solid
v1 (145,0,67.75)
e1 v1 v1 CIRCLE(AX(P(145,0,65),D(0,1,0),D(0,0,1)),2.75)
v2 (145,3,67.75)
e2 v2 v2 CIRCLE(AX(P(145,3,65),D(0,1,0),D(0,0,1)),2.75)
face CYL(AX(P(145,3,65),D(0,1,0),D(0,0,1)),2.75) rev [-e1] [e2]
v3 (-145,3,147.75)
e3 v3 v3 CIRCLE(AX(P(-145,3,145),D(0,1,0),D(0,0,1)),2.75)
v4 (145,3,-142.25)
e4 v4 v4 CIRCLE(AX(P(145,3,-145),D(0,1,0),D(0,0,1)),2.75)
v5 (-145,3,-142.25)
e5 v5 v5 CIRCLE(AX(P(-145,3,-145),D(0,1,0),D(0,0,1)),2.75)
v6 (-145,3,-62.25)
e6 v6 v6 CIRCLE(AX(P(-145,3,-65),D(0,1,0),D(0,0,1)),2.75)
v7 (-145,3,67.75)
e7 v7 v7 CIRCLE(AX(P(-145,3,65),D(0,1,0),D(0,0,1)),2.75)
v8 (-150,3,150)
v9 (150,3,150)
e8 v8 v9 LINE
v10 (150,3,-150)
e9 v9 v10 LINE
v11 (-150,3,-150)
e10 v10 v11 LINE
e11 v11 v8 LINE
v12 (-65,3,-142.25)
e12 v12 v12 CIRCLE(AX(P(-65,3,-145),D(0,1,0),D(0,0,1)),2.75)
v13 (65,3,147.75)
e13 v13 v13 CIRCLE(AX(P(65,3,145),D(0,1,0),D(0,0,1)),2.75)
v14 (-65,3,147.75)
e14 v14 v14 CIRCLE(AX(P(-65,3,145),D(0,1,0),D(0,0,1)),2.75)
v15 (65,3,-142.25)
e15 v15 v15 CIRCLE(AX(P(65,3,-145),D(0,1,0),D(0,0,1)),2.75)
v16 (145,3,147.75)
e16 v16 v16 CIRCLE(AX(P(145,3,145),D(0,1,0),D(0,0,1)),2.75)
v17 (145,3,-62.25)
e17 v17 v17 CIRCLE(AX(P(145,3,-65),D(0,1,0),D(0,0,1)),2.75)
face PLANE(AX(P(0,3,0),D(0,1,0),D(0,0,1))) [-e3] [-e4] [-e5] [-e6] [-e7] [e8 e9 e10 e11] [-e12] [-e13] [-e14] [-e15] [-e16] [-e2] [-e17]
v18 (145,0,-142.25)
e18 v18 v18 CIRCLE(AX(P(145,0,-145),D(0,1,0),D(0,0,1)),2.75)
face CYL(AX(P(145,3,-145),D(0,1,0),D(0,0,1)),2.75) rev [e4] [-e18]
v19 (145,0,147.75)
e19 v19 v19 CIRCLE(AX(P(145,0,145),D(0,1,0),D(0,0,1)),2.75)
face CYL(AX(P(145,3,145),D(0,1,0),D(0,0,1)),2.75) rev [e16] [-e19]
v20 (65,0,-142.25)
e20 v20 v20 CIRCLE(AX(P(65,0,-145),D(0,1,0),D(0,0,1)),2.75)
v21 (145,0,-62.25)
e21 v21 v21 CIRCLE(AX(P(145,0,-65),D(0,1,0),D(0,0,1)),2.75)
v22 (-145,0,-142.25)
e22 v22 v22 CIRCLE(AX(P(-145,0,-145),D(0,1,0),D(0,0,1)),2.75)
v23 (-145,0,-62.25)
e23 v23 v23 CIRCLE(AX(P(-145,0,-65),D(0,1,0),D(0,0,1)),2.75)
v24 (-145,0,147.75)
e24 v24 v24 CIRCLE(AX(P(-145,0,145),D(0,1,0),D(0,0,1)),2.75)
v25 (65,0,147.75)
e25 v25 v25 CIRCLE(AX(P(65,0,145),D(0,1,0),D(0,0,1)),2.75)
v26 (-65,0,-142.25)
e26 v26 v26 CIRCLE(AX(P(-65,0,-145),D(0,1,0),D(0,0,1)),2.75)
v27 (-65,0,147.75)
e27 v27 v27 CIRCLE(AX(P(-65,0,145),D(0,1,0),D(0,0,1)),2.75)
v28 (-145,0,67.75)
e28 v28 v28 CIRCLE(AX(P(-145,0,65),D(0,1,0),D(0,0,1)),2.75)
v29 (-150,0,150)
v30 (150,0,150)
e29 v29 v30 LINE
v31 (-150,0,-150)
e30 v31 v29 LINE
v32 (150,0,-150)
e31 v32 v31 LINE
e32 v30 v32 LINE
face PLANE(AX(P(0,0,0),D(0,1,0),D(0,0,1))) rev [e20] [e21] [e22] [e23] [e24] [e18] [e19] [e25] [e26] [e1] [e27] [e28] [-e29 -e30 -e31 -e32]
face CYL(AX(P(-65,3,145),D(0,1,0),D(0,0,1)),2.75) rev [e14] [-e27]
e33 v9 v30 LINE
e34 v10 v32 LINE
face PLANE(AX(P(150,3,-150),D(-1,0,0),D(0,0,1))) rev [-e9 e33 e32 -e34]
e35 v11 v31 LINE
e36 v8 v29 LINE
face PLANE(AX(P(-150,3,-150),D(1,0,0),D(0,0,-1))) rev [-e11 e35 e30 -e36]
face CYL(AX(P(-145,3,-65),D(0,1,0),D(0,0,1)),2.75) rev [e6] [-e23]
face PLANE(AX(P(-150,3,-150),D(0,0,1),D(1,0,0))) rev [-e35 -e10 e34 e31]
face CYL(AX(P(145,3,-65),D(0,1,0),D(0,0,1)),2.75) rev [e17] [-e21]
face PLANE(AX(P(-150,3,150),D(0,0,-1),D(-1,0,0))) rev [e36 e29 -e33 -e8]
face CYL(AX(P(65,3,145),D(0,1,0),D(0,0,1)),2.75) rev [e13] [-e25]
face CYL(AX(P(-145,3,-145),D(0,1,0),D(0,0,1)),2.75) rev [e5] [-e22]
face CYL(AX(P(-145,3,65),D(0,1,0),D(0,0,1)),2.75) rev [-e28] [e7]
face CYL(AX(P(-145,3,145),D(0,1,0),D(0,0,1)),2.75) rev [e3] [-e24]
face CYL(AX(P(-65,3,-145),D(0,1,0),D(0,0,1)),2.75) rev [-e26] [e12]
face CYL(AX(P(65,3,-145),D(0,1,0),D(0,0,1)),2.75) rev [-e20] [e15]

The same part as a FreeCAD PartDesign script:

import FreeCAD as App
import Part
import Sketcher
from FreeCAD import Vector
Q = App.Units.Quantity


def add_polygon(sketch, points):
    """Adds a closed chain of lines whose ends are joined by coincident constraints."""
    first, n = sketch.GeometryCount, len(points)
    for a, b in zip(points, points[1:] + points[:1]):
        sketch.addGeometry(Part.LineSegment(App.Vector(*a, 0), App.Vector(*b, 0)), False)
    for i in range(n):
        sketch.addConstraint(Sketcher.Constraint("Coincident", first + i, 2, first + (i + 1) % n, 1))

doc = App.newDocument("Part")
body = doc.addObject("PartDesign::Body", "Body")

# Sketch on XZ plane
sketch1 = body.newObject("Sketcher::SketchObject", "Sketch")
sketch1.AttachmentSupport = (doc.getObject("XZ_Plane"), [""])
sketch1.MapMode = "FlatFace"
add_polygon(sketch1, [(-150, -150), (-150, 150), (150, 150), (150, -150)])  # lines 0-3
sketch1.addConstraint([
    Sketcher.Constraint("Vertical", 0),
    Sketcher.Constraint("Horizontal", 1),
    Sketcher.Constraint("Vertical", 2),
    Sketcher.Constraint("Horizontal", 3),
    Sketcher.Constraint("Symmetric", 0, 2, 2, 2, -1, 1),
    Sketcher.Constraint("Equal", 3, 0),
    Sketcher.Constraint("DistanceX", 1, 1, 1, 2, Q("300 mm")),
])
pad1 = body.newObject("PartDesign::Pad", "Pad")
pad1.Profile = sketch1
pad1.Length = 3
pad1.Reversed = True

# Sketch on XZ plane
sketch2 = body.newObject("Sketcher::SketchObject", "Sketch001")
sketch2.AttachmentSupport = (doc.getObject("XZ_Plane"), [""])
sketch2.MapMode = "FlatFace"
sketch2.AttachmentOffset = App.Placement(Vector(0, 0, -3), App.Rotation())
sketch2.addGeometry([
    Part.Circle(Vector(-145, -145, 0), Vector(0, 0, 1), 2.75),  # 0
    Part.Circle(Vector(145, 145, 0), Vector(0, 0, 1), 2.75),  # 1
    Part.Circle(Vector(-145, 145, 0), Vector(0, 0, 1), 2.75),  # 2
    Part.Circle(Vector(145, -145, 0), Vector(0, 0, 1), 2.75),  # 3
    Part.Circle(Vector(-65, -145, 0), Vector(0, 0, 1), 2.75),  # 4
    Part.Circle(Vector(65, -145, 0), Vector(0, 0, 1), 2.75),  # 5
    Part.Circle(Vector(65, 145, 0), Vector(0, 0, 1), 2.75),  # 6
    Part.Circle(Vector(-65, 145, 0), Vector(0, 0, 1), 2.75),  # 7
    Part.Circle(Vector(-145, -65, 0), Vector(0, 0, 1), 2.75),  # 8
    Part.Circle(Vector(-145, 65, 0), Vector(0, 0, 1), 2.75),  # 9
    Part.Circle(Vector(145, -65, 0), Vector(0, 0, 1), 2.75),  # 10
    Part.Circle(Vector(145, 65, 0), Vector(0, 0, 1), 2.75),  # 11
], False)
sketch2.addConstraint([
    Sketcher.Constraint("Equal", 0, 1),
    Sketcher.Constraint("Equal", 1, 2),
    Sketcher.Constraint("Equal", 2, 3),
    Sketcher.Constraint("Equal", 3, 4),
    Sketcher.Constraint("Equal", 4, 5),
    Sketcher.Constraint("Equal", 5, 6),
    Sketcher.Constraint("Equal", 6, 7),
    Sketcher.Constraint("Equal", 7, 8),
    Sketcher.Constraint("Equal", 8, 9),
    Sketcher.Constraint("Equal", 9, 10),
    Sketcher.Constraint("Equal", 10, 11),
    Sketcher.Constraint("Symmetric", 0, 3, 1, 3, -1, 1),
    Sketcher.Constraint("Symmetric", 2, 3, 3, 3, -1, 1),
    Sketcher.Constraint("Symmetric", 4, 3, 6, 3, -1, 1),
    Sketcher.Constraint("Symmetric", 5, 3, 7, 3, -1, 1),
    Sketcher.Constraint("Symmetric", 9, 3, 10, 3, -1, 1),
    Sketcher.Constraint("Symmetric", 8, 3, 11, 3, -1, 1),
    Sketcher.Constraint("Symmetric", 1, 3, 2, 3, -2),
    Sketcher.Constraint("Symmetric", 4, 3, 5, 3, -2),
    Sketcher.Constraint("Symmetric", 8, 3, 10, 3, -2),
    Sketcher.Constraint("Horizontal", 3, 3, 4, 3),
    Sketcher.Constraint("Vertical", 2, 3, 8, 3),
    Sketcher.Constraint("Diameter", 0, Q("5.5 mm")),
    Sketcher.Constraint("DistanceX", 0, 3, -1, 1, Q("145 mm")),
    Sketcher.Constraint("DistanceY", 0, 3, -1, 1, Q("145 mm")),
    Sketcher.Constraint("DistanceX", 4, 3, -1, 1, Q("65 mm")),
    Sketcher.Constraint("DistanceY", 8, 3, -1, 1, Q("65 mm")),
])
doc.recompute()
hole = body.newObject("PartDesign::Hole", "Hole")
hole.Profile = sketch2
hole.ThreadType = "None"
hole.Diameter = 5.5
hole.DepthType = "Dimension"
hole.Depth = 10
hole.DrillPoint = "Angled"
hole.DrillPointAngle = 118
hole.Reversed = True

doc.recompute()
